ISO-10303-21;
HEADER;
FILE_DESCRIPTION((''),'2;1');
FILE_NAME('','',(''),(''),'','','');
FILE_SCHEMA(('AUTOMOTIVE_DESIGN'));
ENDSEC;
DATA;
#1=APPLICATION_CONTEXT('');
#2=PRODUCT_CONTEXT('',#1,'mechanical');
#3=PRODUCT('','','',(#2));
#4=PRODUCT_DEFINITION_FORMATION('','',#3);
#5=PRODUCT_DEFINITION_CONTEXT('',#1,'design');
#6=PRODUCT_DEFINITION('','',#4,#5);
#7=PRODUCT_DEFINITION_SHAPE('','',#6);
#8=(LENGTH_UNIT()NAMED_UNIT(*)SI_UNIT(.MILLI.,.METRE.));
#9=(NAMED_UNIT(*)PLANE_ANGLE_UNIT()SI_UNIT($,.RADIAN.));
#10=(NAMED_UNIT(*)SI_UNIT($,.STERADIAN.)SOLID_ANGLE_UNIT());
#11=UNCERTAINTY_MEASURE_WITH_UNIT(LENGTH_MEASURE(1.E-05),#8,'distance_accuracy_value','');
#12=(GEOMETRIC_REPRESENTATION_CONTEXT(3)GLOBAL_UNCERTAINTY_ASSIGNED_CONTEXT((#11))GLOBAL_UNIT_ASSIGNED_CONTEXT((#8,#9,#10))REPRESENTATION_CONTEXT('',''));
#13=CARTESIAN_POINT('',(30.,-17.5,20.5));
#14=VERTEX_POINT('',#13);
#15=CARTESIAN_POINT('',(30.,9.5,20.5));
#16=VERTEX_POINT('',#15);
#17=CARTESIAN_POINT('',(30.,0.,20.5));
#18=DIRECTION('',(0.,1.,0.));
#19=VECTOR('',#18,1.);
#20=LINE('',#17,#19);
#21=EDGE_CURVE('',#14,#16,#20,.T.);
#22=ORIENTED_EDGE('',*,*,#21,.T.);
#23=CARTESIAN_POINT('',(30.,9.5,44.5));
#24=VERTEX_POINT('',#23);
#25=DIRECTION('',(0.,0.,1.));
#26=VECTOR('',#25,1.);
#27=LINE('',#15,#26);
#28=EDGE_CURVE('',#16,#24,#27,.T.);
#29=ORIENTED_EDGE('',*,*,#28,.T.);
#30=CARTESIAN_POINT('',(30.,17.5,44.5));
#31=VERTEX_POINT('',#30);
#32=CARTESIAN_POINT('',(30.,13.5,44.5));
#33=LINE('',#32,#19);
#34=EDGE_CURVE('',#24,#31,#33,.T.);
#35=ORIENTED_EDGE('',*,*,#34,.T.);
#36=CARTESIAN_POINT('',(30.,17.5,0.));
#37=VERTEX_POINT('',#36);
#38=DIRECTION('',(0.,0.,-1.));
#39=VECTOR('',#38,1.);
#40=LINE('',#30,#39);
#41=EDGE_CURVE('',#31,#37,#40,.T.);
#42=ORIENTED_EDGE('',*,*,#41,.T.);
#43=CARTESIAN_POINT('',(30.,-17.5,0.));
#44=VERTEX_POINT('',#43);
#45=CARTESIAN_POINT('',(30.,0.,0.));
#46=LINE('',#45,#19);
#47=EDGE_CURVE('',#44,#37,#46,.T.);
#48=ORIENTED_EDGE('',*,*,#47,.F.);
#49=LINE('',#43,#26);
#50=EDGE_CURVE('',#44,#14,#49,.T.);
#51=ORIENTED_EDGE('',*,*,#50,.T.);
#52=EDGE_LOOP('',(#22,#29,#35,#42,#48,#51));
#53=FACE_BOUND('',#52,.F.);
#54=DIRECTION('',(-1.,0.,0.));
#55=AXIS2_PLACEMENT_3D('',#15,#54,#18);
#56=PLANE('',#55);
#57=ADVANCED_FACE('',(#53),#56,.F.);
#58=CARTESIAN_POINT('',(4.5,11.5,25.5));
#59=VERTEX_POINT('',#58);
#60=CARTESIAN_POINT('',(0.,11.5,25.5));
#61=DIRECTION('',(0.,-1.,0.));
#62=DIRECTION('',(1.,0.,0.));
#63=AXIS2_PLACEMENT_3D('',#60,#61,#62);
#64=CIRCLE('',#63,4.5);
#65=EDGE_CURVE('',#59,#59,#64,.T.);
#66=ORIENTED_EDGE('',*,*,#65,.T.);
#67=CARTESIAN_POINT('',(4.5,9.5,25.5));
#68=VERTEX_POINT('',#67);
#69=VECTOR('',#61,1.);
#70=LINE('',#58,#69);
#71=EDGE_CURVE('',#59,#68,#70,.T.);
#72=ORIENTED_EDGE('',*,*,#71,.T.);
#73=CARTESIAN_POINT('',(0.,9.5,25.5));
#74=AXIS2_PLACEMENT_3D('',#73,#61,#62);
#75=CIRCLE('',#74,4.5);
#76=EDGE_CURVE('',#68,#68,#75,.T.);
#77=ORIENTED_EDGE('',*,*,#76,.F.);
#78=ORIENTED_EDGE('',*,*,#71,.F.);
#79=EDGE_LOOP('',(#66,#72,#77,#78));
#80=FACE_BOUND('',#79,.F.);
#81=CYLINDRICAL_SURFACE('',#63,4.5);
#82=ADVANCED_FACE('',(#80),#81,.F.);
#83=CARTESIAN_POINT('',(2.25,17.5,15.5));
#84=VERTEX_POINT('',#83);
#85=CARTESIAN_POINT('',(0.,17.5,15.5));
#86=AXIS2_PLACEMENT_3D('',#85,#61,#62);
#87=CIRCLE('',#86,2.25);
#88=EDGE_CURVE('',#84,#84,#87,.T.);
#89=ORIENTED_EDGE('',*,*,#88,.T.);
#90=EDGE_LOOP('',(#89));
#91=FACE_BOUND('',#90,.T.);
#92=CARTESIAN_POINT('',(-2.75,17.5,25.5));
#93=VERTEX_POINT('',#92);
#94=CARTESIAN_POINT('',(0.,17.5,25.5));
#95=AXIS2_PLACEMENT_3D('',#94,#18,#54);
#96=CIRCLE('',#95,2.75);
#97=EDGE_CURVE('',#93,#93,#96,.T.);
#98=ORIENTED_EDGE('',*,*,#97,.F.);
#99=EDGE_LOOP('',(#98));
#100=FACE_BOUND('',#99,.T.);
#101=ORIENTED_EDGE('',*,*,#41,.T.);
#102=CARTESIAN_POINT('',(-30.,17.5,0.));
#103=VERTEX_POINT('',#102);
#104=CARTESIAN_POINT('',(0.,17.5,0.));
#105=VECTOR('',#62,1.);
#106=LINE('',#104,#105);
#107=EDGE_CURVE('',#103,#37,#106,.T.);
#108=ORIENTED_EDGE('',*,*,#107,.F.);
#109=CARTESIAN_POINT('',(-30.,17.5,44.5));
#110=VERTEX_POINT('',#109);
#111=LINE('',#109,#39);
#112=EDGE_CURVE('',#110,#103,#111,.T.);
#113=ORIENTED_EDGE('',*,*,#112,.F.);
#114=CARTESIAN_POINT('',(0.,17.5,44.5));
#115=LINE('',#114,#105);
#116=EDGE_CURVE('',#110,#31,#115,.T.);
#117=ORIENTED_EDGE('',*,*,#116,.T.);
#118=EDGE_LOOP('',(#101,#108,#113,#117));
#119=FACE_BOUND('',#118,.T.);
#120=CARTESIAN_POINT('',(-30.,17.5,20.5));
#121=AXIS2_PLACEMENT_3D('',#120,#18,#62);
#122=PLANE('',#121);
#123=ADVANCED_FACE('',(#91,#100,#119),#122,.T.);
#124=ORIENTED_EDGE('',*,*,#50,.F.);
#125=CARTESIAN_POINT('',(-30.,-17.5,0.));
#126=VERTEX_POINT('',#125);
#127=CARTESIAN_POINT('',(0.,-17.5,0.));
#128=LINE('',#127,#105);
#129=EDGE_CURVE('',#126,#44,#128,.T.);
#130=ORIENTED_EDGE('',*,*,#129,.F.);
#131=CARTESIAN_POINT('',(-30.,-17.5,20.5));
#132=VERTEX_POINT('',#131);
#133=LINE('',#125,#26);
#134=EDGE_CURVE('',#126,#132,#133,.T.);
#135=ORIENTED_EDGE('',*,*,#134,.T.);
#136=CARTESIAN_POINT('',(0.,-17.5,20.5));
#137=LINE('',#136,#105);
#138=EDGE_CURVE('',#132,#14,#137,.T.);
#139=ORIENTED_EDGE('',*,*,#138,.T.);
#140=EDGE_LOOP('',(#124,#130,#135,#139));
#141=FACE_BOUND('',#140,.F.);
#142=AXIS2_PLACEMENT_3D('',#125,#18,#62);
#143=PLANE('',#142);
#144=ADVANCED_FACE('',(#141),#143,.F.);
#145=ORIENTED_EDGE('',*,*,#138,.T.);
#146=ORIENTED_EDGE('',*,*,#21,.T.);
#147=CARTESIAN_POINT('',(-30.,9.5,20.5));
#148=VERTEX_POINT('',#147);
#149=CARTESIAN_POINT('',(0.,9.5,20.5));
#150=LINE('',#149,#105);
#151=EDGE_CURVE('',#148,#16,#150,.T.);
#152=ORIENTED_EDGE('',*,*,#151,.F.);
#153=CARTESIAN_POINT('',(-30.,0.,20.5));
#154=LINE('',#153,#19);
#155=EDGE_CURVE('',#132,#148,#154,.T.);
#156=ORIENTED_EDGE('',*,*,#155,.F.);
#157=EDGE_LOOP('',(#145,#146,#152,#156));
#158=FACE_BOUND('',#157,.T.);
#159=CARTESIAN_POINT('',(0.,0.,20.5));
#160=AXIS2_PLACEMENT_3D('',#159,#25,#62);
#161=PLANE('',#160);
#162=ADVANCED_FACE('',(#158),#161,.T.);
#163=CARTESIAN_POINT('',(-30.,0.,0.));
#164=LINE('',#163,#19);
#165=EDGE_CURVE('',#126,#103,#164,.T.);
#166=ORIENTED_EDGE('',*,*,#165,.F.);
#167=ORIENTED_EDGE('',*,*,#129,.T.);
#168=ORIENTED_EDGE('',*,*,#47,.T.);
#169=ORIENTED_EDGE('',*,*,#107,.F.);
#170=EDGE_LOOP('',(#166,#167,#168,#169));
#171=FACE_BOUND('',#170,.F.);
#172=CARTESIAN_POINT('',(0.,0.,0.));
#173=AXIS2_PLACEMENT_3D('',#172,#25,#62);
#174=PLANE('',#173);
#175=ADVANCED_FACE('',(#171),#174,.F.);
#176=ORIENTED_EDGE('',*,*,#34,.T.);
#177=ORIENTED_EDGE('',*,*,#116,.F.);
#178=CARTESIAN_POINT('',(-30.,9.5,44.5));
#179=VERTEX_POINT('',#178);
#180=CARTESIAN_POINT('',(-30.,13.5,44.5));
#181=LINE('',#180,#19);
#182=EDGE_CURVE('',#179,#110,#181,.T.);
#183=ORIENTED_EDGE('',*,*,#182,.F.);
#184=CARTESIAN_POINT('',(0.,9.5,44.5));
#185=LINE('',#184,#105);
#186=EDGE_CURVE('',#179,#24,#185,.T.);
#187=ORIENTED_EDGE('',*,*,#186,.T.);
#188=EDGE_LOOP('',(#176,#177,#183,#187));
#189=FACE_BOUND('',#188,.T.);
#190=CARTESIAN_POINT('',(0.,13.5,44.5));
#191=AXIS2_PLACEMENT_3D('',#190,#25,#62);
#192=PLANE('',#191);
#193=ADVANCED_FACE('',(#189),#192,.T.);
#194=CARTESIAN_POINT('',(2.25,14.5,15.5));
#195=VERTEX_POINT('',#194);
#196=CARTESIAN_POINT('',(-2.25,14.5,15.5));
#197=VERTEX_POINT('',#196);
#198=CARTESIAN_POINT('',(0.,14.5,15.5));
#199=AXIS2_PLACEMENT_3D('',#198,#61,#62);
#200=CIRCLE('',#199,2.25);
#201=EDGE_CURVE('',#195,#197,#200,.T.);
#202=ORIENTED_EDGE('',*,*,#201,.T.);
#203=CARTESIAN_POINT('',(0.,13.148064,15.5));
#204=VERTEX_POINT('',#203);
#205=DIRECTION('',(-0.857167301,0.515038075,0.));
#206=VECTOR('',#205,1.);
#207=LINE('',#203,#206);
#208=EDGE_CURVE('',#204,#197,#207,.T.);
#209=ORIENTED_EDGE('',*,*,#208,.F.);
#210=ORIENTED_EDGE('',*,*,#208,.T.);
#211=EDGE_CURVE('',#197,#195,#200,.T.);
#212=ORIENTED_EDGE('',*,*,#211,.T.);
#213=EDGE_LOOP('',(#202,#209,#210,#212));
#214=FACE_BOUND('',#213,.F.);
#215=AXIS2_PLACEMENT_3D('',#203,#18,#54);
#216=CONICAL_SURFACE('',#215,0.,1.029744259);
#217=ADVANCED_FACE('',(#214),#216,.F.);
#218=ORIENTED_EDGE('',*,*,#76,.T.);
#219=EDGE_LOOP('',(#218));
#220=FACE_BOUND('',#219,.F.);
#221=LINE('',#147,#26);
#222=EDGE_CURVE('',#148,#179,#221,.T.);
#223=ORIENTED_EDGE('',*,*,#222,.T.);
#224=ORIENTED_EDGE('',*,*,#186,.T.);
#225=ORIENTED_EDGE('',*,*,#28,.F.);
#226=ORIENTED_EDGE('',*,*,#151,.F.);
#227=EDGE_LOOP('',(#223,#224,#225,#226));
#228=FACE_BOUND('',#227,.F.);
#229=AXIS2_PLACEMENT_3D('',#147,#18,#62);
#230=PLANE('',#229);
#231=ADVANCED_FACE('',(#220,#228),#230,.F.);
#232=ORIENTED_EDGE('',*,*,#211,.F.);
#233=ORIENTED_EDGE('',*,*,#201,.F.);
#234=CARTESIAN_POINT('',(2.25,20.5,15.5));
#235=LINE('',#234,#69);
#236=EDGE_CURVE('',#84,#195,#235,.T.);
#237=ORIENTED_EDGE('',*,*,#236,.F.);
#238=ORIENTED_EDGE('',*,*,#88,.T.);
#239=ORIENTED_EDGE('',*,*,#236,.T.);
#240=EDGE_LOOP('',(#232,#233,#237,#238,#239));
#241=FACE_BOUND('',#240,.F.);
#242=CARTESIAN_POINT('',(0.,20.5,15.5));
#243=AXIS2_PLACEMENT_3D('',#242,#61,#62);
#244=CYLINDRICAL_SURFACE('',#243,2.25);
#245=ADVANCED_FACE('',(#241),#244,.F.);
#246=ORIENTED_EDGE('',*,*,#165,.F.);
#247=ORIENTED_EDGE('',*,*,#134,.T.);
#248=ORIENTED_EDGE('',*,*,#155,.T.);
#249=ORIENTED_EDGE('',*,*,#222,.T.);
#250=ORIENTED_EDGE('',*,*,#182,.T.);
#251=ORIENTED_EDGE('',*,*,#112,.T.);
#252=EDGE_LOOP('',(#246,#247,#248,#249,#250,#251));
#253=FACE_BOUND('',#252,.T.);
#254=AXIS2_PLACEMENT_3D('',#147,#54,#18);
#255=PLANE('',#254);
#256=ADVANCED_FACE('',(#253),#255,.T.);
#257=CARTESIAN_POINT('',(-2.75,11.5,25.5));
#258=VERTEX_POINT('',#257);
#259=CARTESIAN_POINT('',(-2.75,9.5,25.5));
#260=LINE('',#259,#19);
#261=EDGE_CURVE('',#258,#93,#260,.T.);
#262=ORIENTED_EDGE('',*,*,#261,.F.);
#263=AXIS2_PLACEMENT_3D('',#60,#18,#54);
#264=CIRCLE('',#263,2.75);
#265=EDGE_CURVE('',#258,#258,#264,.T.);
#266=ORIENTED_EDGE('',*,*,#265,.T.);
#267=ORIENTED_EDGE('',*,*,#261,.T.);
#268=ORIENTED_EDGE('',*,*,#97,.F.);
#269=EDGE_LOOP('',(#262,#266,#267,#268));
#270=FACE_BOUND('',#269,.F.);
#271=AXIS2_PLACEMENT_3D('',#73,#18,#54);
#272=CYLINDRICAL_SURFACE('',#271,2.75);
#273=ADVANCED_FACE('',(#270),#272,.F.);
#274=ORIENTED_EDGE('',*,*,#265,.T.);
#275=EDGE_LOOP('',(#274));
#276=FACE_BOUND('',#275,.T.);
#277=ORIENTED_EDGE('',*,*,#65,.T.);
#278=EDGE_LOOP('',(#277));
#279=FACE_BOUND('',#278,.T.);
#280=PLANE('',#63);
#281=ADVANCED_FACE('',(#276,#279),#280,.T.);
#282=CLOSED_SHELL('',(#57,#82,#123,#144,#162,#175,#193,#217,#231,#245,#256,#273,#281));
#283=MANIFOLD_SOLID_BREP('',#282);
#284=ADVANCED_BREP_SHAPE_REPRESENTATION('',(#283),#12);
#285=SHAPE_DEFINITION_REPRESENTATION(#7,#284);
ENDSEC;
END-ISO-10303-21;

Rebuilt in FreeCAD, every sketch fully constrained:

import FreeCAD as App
import Part
import Sketcher
Q = App.Units.Quantity


def add_polygon(sketch, points):
    """Adds a closed chain of lines whose ends are joined by coincident constraints."""
    first, n = sketch.GeometryCount, len(points)
    for a, b in zip(points, points[1:] + points[:1]):
        sketch.addGeometry(Part.LineSegment(App.Vector(*a, 0), App.Vector(*b, 0)), False)
    for i in range(n):
        sketch.addConstraint(Sketcher.Constraint("Coincident", first + i, 2, first + (i + 1) % n, 1))

doc = App.newDocument("Part")
params = doc.addObject("Spreadsheet::Sheet", "Params")
for row, (alias, value) in enumerate([
    ("sketch1_width", "60 mm"),
    ("sketch1_height", "35 mm"),
    ("pad1_length", "20.5 mm"),
    ("sketch2_width", "60 mm"),
    ("sketch2_height", "8 mm"),
    ("pad2_length", "24 mm"),
    ("sketch3_diameter", "5.5 mm"),
    ("hole_diameter", "5.5 mm"),
    ("hole_cbore_diameter", "9 mm"),
    ("hole_cbore_depth", "2 mm"),
    ("sketch4_diameter", "4.5 mm"),
    ("hole2_diameter", "4.5 mm"),
    ("hole2_depth", "3 mm"),
], start=1):
    params.set(f"A{row}", alias)
    params.set(f"B{row}", "=" + value)
    params.setAlias(f"B{row}", alias)

body = doc.addObject("PartDesign::Body", "Body")

sketch1 = body.newObject("Sketcher::SketchObject", "Sketch")
sketch1.AttachmentSupport = (doc.getObject("XY_Plane"), [""])
sketch1.MapMode = "FlatFace"
add_polygon(sketch1, [(-30, 17.5), (-30, -17.5), (30, -17.5), (30, 17.5)])
sketch1.addConstraint(Sketcher.Constraint("Vertical", 0))
sketch1.addConstraint(Sketcher.Constraint("Horizontal", 1))
sketch1.addConstraint(Sketcher.Constraint("Vertical", 2))
sketch1.addConstraint(Sketcher.Constraint("Horizontal", 3))
sketch1.addConstraint(Sketcher.Constraint("Symmetric", 0, 2, 2, 2, -1, 1))
sketch1.addConstraint(Sketcher.Constraint("DistanceX", 1, 1, 1, 2, Q("60 mm")))
sketch1.addConstraint(Sketcher.Constraint("DistanceY", 0, 2, 0, 1, Q("35 mm")))
sketch1.setExpression("Constraints[9]", "Params.sketch1_width")
sketch1.setExpression("Constraints[10]", "Params.sketch1_height")
pad1 = body.newObject("PartDesign::Pad", "Pad")
pad1.Profile = sketch1
pad1.setExpression("Length", "Params.pad1_length")

sketch2 = body.newObject("Sketcher::SketchObject", "Sketch001")
sketch2.AttachmentSupport = (doc.getObject("XY_Plane"), [""])
sketch2.MapMode = "FlatFace"
sketch2.AttachmentOffset = App.Placement(App.Vector(0, 0, 20.5), App.Rotation())
add_polygon(sketch2, [(-30, 17.5), (-30, 9.5), (30, 9.5), (30, 17.5)])
sketch2.addConstraint(Sketcher.Constraint("Vertical", 0))
sketch2.addConstraint(Sketcher.Constraint("Horizontal", 1))
sketch2.addConstraint(Sketcher.Constraint("Vertical", 2))
sketch2.addConstraint(Sketcher.Constraint("Horizontal", 3))
sketch2.addConstraint(Sketcher.Constraint("DistanceX", 1, 1, 1, 2, Q("60 mm")))
sketch2.addConstraint(Sketcher.Constraint("DistanceY", 0, 2, 0, 1, Q("8 mm")))
sketch2.addConstraint(Sketcher.Constraint("DistanceX", 0, 2, -1, 1, Q("30 mm")))
sketch2.addConstraint(Sketcher.Constraint("DistanceY", -1, 1, 0, 2, Q("9.5 mm")))
sketch2.setExpression("Constraints[8]", "Params.sketch2_width")
sketch2.setExpression("Constraints[9]", "Params.sketch2_height")
pad2 = body.newObject("PartDesign::Pad", "Pad001")
pad2.Profile = sketch2
pad2.setExpression("Length", "Params.pad2_length")

sketch3 = body.newObject("Sketcher::SketchObject", "Sketch002")
sketch3.AttachmentSupport = (doc.getObject("XZ_Plane"), [""])
sketch3.MapMode = "FlatFace"
sketch3.AttachmentOffset = App.Placement(App.Vector(0, 0, -9.5), App.Rotation())
sketch3.addGeometry(Part.Circle(App.Vector(0, 25.5, 0), App.Vector(0, 0, 1), 2.75), False)
sketch3.addConstraint(Sketcher.Constraint("PointOnObject", 0, 3, -2))
sketch3.addConstraint(Sketcher.Constraint("Diameter", 0, Q("5.5 mm")))
sketch3.addConstraint(Sketcher.Constraint("DistanceY", -1, 1, 0, 3, Q("25.5 mm")))
sketch3.setExpression("Constraints[1]", "Params.sketch3_diameter")
doc.recompute()
hole = body.newObject("PartDesign::Hole", "Hole")
hole.Profile = sketch3
hole.ThreadType = "None"
hole.setExpression("Diameter", "Params.hole_diameter")
hole.DepthType = "ThroughAll"
hole.HoleCutType = "Counterbore"
hole.setExpression("HoleCutDiameter", "Params.hole_cbore_diameter")
hole.setExpression("HoleCutDepth", "Params.hole_cbore_depth")

sketch4 = body.newObject("Sketcher::SketchObject", "Sketch003")
sketch4.AttachmentSupport = (doc.getObject("XZ_Plane"), [""])
sketch4.MapMode = "FlatFace"
sketch4.AttachmentOffset = App.Placement(App.Vector(0, 0, -17.5), App.Rotation())
sketch4.addGeometry(Part.Circle(App.Vector(0, 15.5, 0), App.Vector(0, 0, 1), 2.25), False)
sketch4.addConstraint(Sketcher.Constraint("PointOnObject", 0, 3, -2))
sketch4.addConstraint(Sketcher.Constraint("Diameter", 0, Q("4.5 mm")))
sketch4.addConstraint(Sketcher.Constraint("DistanceY", -1, 1, 0, 3, Q("15.5 mm")))
sketch4.setExpression("Constraints[1]", "Params.sketch4_diameter")
doc.recompute()
hole2 = body.newObject("PartDesign::Hole", "Hole001")
hole2.Profile = sketch4
hole2.ThreadType = "None"
hole2.setExpression("Diameter", "Params.hole2_diameter")
hole2.DepthType = "Dimension"
hole2.setExpression("Depth", "Params.hole2_depth")
hole2.DrillPoint = "Angled"
hole2.DrillPointAngle = 118
hole2.Reversed = True

doc.recompute()
